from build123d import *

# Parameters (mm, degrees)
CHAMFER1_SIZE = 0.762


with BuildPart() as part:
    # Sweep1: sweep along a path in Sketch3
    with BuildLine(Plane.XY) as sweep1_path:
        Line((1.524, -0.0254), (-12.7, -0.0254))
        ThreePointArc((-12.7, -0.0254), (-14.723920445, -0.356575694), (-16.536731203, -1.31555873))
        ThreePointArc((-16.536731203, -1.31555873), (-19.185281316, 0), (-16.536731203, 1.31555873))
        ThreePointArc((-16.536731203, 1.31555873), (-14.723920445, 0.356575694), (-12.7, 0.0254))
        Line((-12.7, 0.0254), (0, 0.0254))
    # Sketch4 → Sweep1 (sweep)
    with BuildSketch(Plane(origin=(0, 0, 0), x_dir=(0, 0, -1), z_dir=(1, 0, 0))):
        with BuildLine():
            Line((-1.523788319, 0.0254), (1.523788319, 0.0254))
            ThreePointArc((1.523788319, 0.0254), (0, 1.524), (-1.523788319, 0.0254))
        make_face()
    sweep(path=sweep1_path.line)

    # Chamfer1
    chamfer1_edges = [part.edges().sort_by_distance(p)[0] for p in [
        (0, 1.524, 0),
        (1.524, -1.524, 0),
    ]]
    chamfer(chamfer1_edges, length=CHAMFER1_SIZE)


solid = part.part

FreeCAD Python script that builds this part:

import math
import FreeCAD as App
import Part
import Sketcher
from FreeCAD import Vector
Q = App.Units.Quantity


def edges_at(feature, points):
    """Names of the edges that pass closest to the given points."""
    edges = feature.Shape.Edges
    near = lambda p: min(range(len(edges)), key=lambda i: edges[i].distToShape(Part.Vertex(*p))[0])
    return sorted({f"Edge{near(p) + 1}" for p in points})

doc = App.newDocument("Part")
body = doc.addObject("PartDesign::Body", "Body")

# Sketch on YZ plane
sketch1 = doc.addObject("Sketcher::SketchObject", "Sketch")
body.addObject(sketch1)
sketch1.AttachmentSupport = (doc.YZ_Plane, [""])
sketch1.MapMode = "FlatFace"
sketch1.addGeometry(Part.LineSegment(Vector(0, 1.5, 0), Vector(0, -1.5, 0)), False)
sketch1.addGeometry(Part.ArcOfCircle(Part.Circle(Vector(0, 0, 0), Vector(0, 0, 1), 1.5), math.radians(-89), math.radians(89)), False)
sketch1.addConstraint(Sketcher.Constraint("Coincident", 0, 1, 1, 2))
sketch1.addConstraint(Sketcher.Constraint("Coincident", 1, 1, 0, 2))
sketch1.addConstraint(Sketcher.Constraint("Vertical", 0))
sketch1.addConstraint(Sketcher.Constraint("Coincident", 1, 3, -1, 1))
sketch1.addConstraint(Sketcher.Constraint("Radius", 1, Q("0.06 in")))
sketch1.addConstraint(Sketcher.Constraint("DistanceX", -1, 1, 0, 1, Q("0.001 in")))

# Sketch on XY plane
sketch2 = doc.addObject("Sketcher::SketchObject", "Sketch001")
body.addObject(sketch2)
sketch2.AttachmentSupport = (doc.XY_Plane, [""])
sketch2.MapMode = "FlatFace"
sketch2.addGeometry(Part.LineSegment(Vector(1.5, 0, 0), Vector(-12.7, 0, 0)), False)
sketch2.addGeometry(Part.ArcOfCircle(Part.Circle(Vector(-12.7, -6.4, 0), Vector(0, 0, 1), 6.4), math.radians(90), math.radians(127)), False)
sketch2.addGeometry(Part.ArcOfCircle(Part.Circle(Vector(-17.5, 0, 0), Vector(0, 0, 1), 1.7), math.radians(53), math.radians(307)), False)
sketch2.addGeometry(Part.ArcOfCircle(Part.Circle(Vector(-12.7, 6.4, 0), Vector(0, 0, 1), 6.4), math.radians(-127), math.radians(-90)), False)
sketch2.addGeometry(Part.LineSegment(Vector(-12.7, 0, 0), Vector(0, 0, 0)), False)
sketch2.addConstraint(Sketcher.Constraint("Tangent", 0, 2, 1, 1))
sketch2.addConstraint(Sketcher.Constraint("Tangent", 1, 2, 2, 2))
sketch2.addConstraint(Sketcher.Constraint("Tangent", 2, 1, 3, 1))
sketch2.addConstraint(Sketcher.Constraint("Tangent", 3, 2, 4, 1))
sketch2.addConstraint(Sketcher.Constraint("Horizontal", 0))
sketch2.addConstraint(Sketcher.Constraint("Horizontal", 4))
sketch2.addConstraint(Sketcher.Constraint("Equal", 1, 3))
sketch2.addConstraint(Sketcher.Constraint("Symmetric", 1, 3, 3, 3, -1))
sketch2.addConstraint(Sketcher.Constraint("PointOnObject", 4, 2, -2))
sketch2.addConstraint(Sketcher.Constraint("Radius", 1, Q("0.25 in")))
sketch2.addConstraint(Sketcher.Constraint("DistanceX", 4, 1, 4, 2, Q("0.5 in")))
sketch2.addConstraint(Sketcher.Constraint("Radius", 2, Q("0.065 in")))
sketch2.addConstraint(Sketcher.Constraint("DistanceX", 0, 2, 0, 1, Q("0.56 in")))
sketch2.addConstraint(Sketcher.Constraint("DistanceY", 1, 3, -1, 1, Q("0.251 in")))
doc.recompute()

additivepipe = doc.addObject("PartDesign::AdditivePipe", "AdditivePipe")
body.addObject(additivepipe)
additivepipe.Profile = sketch1
additivepipe.Spine = (sketch2, ["Edge1", "Edge2", "Edge3", "Edge4", "Edge5"])
doc.recompute()

chamfer = doc.addObject("PartDesign::Chamfer", "Chamfer")
body.addObject(chamfer)
chamfer.Base = (additivepipe, edges_at(additivepipe, [(0, 1.524, 0), (1.524, -1.524, 0)]))
chamfer.Size = Q("0.03 in")

doc.recompute()
